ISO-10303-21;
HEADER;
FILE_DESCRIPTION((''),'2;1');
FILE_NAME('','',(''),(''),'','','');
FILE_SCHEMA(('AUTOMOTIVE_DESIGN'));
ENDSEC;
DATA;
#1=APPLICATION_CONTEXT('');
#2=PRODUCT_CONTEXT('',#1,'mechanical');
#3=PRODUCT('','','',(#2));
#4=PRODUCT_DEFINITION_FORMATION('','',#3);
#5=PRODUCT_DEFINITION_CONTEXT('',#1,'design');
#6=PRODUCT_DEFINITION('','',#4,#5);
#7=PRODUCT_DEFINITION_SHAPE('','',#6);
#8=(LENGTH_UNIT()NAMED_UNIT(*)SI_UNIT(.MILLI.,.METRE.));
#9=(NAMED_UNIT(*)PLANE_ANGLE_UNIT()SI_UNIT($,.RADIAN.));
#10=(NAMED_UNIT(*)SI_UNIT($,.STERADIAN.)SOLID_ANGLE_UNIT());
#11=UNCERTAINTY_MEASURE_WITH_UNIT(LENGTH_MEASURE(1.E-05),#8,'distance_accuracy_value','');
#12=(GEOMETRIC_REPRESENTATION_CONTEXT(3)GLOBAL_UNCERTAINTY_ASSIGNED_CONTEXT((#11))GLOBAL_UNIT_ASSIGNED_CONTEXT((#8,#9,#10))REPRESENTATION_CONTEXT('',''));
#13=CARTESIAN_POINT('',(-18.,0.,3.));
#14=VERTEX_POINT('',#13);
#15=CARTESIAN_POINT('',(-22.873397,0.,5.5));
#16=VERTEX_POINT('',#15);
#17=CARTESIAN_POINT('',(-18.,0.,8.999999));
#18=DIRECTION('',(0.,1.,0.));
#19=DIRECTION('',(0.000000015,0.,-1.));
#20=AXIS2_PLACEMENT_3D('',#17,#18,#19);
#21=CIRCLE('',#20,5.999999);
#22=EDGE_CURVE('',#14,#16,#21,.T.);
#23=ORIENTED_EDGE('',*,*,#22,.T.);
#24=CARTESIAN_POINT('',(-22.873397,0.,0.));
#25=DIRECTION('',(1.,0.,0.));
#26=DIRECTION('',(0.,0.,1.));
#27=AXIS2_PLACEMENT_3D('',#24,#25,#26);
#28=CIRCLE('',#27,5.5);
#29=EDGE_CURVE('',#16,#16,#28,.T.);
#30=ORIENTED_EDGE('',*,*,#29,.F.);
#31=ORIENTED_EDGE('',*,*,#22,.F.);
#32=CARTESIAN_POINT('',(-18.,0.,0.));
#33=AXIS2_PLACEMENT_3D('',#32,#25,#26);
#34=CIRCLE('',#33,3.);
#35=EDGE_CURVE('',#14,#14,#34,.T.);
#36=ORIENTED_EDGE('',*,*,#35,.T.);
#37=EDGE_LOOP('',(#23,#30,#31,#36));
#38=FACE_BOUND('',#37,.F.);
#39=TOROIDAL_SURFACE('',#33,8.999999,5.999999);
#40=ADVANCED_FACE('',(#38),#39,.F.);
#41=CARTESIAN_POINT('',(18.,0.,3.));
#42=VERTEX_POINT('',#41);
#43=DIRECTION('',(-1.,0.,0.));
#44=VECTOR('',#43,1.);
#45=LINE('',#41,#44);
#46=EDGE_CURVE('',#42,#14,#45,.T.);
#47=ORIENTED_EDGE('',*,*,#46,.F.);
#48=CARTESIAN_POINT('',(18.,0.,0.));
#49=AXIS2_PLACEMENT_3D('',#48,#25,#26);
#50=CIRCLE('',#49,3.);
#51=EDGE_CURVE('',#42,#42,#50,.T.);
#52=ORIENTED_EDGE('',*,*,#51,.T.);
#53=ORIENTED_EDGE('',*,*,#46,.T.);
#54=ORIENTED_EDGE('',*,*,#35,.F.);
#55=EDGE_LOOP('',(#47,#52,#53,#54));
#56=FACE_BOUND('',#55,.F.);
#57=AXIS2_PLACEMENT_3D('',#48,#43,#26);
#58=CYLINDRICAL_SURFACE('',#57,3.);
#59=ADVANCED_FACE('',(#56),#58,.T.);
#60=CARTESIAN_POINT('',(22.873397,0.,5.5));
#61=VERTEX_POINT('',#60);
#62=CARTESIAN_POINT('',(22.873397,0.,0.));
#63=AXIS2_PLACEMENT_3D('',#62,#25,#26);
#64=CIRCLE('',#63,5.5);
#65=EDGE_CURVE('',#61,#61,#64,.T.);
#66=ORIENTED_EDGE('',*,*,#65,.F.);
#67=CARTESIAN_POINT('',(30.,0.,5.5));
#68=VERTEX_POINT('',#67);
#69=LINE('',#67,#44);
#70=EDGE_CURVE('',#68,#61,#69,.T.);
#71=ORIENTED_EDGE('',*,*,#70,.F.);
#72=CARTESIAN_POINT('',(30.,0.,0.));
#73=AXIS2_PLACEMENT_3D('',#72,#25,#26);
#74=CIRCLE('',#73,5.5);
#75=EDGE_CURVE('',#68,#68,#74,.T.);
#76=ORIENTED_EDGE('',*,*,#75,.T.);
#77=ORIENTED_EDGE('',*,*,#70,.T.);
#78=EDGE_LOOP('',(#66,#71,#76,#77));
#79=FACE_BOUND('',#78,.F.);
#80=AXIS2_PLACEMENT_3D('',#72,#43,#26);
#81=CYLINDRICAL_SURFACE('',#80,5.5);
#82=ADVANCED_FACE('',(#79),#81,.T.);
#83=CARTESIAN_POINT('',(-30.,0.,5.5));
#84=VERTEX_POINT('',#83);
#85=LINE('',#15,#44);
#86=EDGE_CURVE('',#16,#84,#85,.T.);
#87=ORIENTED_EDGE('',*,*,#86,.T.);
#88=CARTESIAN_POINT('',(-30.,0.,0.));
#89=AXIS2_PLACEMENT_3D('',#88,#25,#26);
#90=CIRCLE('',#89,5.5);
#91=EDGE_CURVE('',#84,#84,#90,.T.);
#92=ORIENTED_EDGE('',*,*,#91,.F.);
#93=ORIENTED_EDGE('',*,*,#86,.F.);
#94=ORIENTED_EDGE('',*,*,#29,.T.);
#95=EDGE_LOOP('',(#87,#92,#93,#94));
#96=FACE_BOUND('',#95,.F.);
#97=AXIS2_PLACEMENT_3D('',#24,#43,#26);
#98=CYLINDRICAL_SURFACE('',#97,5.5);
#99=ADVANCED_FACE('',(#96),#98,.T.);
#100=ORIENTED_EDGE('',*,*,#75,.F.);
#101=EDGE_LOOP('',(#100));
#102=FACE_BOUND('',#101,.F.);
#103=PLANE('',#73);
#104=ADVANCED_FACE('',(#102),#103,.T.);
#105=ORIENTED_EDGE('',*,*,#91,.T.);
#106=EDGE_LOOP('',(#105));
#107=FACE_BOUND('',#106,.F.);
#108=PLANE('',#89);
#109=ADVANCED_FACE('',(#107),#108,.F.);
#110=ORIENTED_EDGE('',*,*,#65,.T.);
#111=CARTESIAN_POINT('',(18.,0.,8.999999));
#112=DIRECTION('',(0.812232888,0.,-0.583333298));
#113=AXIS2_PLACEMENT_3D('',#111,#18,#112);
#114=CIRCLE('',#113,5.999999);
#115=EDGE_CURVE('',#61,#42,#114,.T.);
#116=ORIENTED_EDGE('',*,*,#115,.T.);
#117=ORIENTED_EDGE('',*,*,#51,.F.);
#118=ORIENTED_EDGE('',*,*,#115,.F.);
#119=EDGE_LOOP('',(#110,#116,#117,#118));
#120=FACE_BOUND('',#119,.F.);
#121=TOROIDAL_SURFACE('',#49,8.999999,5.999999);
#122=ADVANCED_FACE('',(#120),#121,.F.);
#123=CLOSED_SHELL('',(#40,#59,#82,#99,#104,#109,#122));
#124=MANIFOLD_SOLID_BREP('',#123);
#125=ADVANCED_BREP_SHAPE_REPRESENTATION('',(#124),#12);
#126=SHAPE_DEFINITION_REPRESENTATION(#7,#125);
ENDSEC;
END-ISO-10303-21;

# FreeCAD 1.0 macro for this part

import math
import FreeCAD as App
import Part
import Sketcher

V = App.Vector

doc = App.newDocument("Part")
body = doc.addObject("PartDesign::Body", "Body")

sketch1 = body.newObject("Sketcher::SketchObject", "Sketch")
sketch1.AttachmentSupport = (doc.getObject("XZ_Plane"), [""])
sketch1.MapMode = "FlatFace"
sketch1.addGeometry([
    Part.LineSegment(V(18, 3, 0), V(-18, 3, 0)),
    Part.ArcOfCircle(Part.Circle(V(-18, 9, 0), V(0, 0, 1), 6), math.radians(-144), math.radians(-90)),
    Part.LineSegment(V(-23, 6, 0), V(-30, 6, 0)),
    Part.LineSegment(V(-30, 6, 0), V(-30, 0, 0)),
    Part.LineSegment(V(-30, 0, 0), V(30, 0, 0)),
    Part.LineSegment(V(30, 0, 0), V(30, 6, 0)),
    Part.LineSegment(V(30, 6, 0), V(23, 6, 0)),
    Part.ArcOfCircle(Part.Circle(V(18, 9, 0), V(0, 0, 1), 6), math.radians(-90), math.radians(-36)),
], False)
sketch1.addConstraint([
    Sketcher.Constraint("Tangent", 0, 2, 1, 2),
    Sketcher.Constraint("Coincident", 1, 1, 2, 1),
    Sketcher.Constraint("Coincident", 2, 2, 3, 1),
    Sketcher.Constraint("Coincident", 3, 2, 4, 1),
    Sketcher.Constraint("Coincident", 4, 2, 5, 1),
    Sketcher.Constraint("Coincident", 5, 2, 6, 1),
    Sketcher.Constraint("Coincident", 6, 2, 7, 2),
    Sketcher.Constraint("Tangent", 7, 1, 0, 1),
    Sketcher.Constraint("Horizontal", 0),
    Sketcher.Constraint("Horizontal", 2),
    Sketcher.Constraint("Vertical", 3),
    Sketcher.Constraint("Horizontal", 4),
    Sketcher.Constraint("Vertical", 5),
    Sketcher.Constraint("Horizontal", 6),
    Sketcher.Constraint("Equal", 1, 7),
    Sketcher.Constraint("Symmetric", 3, 2, 4, 2, -1, 1),
    Sketcher.Constraint("Symmetric", 1, 1, 6, 2, -2),
    Sketcher.Constraint("Radius", 1, 5.999999),
    Sketcher.Constraint("DistanceX", 0, 2, 0, 1, 36.0),
    Sketcher.Constraint("DistanceX", 4, 1, 4, 2, 60.0),
    Sketcher.Constraint("DistanceY", 3, 2, 3, 1, 5.5),
    Sketcher.Constraint("DistanceY", -1, 1, 1, 3, 8.999999),
])
revolution = body.newObject("PartDesign::Revolution", "Revolution")
revolution.Profile = sketch1
revolution.ReferenceAxis = (sketch1, ["H_Axis"])
revolution.Angle = 360

doc.recompute()
